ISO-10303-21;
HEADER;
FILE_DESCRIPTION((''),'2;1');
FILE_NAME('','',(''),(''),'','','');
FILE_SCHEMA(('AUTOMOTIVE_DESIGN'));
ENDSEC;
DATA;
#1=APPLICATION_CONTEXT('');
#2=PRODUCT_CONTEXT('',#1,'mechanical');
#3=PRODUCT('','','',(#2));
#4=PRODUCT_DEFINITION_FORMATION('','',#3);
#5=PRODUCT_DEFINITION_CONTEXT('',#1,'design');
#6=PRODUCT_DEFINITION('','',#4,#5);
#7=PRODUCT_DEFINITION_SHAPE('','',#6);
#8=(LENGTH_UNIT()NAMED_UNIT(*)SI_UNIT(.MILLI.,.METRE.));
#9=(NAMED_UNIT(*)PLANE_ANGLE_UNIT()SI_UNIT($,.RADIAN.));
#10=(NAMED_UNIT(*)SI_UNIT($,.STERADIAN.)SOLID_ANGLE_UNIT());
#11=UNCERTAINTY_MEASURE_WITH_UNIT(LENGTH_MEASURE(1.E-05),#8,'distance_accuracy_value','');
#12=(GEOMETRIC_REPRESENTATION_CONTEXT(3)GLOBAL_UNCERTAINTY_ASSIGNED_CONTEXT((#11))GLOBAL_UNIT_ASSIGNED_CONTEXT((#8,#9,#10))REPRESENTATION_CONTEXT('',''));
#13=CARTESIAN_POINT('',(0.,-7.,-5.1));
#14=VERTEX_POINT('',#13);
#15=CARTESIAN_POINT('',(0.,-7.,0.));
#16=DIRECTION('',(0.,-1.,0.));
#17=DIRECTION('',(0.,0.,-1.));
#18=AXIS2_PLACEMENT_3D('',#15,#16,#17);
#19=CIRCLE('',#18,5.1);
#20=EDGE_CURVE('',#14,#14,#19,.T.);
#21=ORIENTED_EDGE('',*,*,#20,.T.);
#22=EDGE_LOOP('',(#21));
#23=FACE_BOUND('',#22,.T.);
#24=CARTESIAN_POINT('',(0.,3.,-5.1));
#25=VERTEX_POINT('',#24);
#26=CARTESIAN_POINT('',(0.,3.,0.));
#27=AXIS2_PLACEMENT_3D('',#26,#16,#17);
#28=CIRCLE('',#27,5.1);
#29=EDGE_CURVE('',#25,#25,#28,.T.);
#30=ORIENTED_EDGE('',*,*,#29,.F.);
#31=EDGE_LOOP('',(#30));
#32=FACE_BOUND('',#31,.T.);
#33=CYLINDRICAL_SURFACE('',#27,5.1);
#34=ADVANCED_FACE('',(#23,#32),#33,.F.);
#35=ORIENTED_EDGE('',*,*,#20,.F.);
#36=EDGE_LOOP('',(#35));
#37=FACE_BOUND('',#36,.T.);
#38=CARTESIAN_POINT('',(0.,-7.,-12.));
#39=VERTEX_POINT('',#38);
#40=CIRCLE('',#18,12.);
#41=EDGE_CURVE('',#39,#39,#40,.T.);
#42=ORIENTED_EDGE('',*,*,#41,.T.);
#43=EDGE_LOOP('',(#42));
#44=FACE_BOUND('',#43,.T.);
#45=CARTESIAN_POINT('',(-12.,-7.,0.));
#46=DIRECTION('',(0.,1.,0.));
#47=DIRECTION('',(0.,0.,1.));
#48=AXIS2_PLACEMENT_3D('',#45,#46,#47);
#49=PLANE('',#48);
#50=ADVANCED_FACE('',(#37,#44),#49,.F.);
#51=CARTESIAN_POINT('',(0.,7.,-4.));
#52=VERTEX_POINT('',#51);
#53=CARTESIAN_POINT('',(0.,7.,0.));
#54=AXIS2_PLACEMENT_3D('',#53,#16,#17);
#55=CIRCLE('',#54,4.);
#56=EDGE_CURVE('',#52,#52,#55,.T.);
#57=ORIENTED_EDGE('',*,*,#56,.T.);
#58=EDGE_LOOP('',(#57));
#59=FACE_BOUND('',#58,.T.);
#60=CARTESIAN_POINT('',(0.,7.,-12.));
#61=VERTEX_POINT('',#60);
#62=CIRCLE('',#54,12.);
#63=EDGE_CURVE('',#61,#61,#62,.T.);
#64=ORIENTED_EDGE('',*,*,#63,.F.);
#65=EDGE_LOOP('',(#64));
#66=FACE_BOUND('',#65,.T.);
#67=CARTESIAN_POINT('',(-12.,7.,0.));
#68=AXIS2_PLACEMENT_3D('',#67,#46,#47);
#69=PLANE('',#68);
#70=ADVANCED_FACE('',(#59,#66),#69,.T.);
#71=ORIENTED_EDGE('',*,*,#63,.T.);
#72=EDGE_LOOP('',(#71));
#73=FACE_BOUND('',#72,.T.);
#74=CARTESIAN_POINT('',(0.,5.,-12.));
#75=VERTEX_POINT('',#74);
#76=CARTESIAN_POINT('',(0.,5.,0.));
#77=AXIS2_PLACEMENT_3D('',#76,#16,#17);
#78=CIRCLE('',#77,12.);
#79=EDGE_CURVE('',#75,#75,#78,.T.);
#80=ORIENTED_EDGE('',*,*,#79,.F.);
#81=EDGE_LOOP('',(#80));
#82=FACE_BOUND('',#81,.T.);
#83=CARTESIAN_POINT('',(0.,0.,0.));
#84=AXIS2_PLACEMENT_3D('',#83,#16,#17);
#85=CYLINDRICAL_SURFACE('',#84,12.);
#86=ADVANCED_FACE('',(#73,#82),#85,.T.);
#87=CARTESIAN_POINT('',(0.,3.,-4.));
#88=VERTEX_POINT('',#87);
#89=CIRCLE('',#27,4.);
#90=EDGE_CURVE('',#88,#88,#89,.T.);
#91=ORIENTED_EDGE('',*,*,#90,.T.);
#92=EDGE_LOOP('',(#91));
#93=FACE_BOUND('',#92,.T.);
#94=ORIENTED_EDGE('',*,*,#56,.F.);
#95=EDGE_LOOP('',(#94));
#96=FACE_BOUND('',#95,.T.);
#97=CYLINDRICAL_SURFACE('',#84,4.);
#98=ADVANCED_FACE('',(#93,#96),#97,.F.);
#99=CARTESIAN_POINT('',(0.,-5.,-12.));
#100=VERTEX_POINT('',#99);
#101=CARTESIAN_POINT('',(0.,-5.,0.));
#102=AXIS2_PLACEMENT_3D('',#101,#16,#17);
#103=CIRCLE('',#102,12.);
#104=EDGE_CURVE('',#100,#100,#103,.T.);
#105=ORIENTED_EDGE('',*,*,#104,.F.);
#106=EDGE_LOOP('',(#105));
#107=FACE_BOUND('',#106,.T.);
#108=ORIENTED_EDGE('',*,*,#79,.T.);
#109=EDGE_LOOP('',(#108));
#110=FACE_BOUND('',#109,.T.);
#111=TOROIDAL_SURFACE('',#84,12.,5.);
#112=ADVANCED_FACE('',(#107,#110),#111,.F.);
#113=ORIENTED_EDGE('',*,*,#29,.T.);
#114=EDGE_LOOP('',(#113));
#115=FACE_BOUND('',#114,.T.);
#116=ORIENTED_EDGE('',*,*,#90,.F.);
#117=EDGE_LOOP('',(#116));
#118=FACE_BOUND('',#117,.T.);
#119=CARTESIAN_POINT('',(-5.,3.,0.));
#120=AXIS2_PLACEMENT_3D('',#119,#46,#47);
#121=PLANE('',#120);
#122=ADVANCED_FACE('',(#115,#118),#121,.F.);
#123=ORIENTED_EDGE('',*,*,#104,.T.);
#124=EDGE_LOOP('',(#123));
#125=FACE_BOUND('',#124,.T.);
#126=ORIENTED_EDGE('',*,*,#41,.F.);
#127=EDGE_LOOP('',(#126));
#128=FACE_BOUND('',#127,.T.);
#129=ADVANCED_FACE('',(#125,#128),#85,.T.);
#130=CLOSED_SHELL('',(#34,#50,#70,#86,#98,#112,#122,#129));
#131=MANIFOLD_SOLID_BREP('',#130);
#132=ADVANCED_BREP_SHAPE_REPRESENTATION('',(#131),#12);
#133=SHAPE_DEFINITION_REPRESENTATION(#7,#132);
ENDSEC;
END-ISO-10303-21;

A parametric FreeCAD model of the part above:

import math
import FreeCAD as App
import Part
import Sketcher

doc = App.newDocument("Part")
body = doc.addObject("PartDesign::Body", "Body")

# Sketch on XY plane
sketch1 = body.newObject("Sketcher::SketchObject", "Sketch")
sketch1.AttachmentSupport = (doc.getObject("XY_Plane"), [""])
sketch1.MapMode = "FlatFace"
sketch1.addGeometry([
    Part.LineSegment(App.Vector(-12, -7, 0), App.Vector(-5, -7, 0)),  # 0
    Part.LineSegment(App.Vector(-5, -7, 0), App.Vector(-5, 7, 0)),  # 1
    Part.LineSegment(App.Vector(-5, 7, 0), App.Vector(-12, 7, 0)),  # 2
    Part.LineSegment(App.Vector(-12, 7, 0), App.Vector(-12, 5, 0)),  # 3
    Part.ArcOfCircle(Part.Circle(App.Vector(-12, 0, 0), App.Vector(0, 0, 1), 5), math.radians(-90), math.radians(90)),  # 4
    Part.LineSegment(App.Vector(-12, -5, 0), App.Vector(-12, -7, 0)),  # 5
], False)
sketch1.addConstraint([
    Sketcher.Constraint("Coincident", 0, 2, 1, 1),
    Sketcher.Constraint("Coincident", 1, 2, 2, 1),
    Sketcher.Constraint("Coincident", 2, 2, 3, 1),
    Sketcher.Constraint("Coincident", 3, 2, 4, 2),
    Sketcher.Constraint("Coincident", 4, 1, 5, 1),
    Sketcher.Constraint("Coincident", 5, 2, 0, 1),
    Sketcher.Constraint("Horizontal", 0),
    Sketcher.Constraint("Vertical", 1),
    Sketcher.Constraint("Horizontal", 2),
    Sketcher.Constraint("Vertical", 3),
    Sketcher.Constraint("Vertical", 5),
    Sketcher.Constraint("Symmetric", 3, 2, 4, 1, -1),
    Sketcher.Constraint("Vertical", 4, 3, 2, 2),
    Sketcher.Constraint("Equal", 3, 5),
    Sketcher.Constraint("Radius", 4, 5.0),
    Sketcher.Constraint("DistanceX", 0, 1, 0, 2, 7.0),
    Sketcher.Constraint("DistanceY", 1, 1, 1, 2, 14.0),
    Sketcher.Constraint("DistanceX", 4, 3, -1, 1, 12.0),
])
revolution = body.newObject("PartDesign::Revolution", "Revolution")
revolution.Profile = sketch1
revolution.ReferenceAxis = (sketch1, ["V_Axis"])
revolution.Angle = 360

# Sketch on XY plane
sketch2 = body.newObject("Sketcher::SketchObject", "Sketch001")
sketch2.AttachmentSupport = (doc.getObject("XY_Plane"), [""])
sketch2.MapMode = "FlatFace"
sketch2.addGeometry([
    Part.LineSegment(App.Vector(-5, 7, 0), App.Vector(-5, 3, 0)),  # 0
    Part.LineSegment(App.Vector(-5, 3, 0), App.Vector(-4, 3, 0)),  # 1
    Part.LineSegment(App.Vector(-4, 3, 0), App.Vector(-4, 7, 0)),  # 2
    Part.LineSegment(App.Vector(-4, 7, 0), App.Vector(-5, 7, 0)),  # 3
    Part.LineSegment(App.Vector(-5, -3, 0), App.Vector(-5, -7, 0)),  # 4
    Part.LineSegment(App.Vector(-5, -7, 0), App.Vector(-4, -7, 0)),  # 5
    Part.LineSegment(App.Vector(-4, -7, 0), App.Vector(-4, -3, 0)),  # 6
    Part.LineSegment(App.Vector(-4, -3, 0), App.Vector(-5, -3, 0)),  # 7
], False)
sketch2.addConstraint([
    Sketcher.Constraint("Coincident", 0, 2, 1, 1),
    Sketcher.Constraint("Coincident", 1, 2, 2, 1),
    Sketcher.Constraint("Coincident", 2, 2, 3, 1),
    Sketcher.Constraint("Coincident", 3, 2, 0, 1),
    Sketcher.Constraint("Coincident", 4, 2, 5, 1),
    Sketcher.Constraint("Coincident", 5, 2, 6, 1),
    Sketcher.Constraint("Coincident", 6, 2, 7, 1),
    Sketcher.Constraint("Coincident", 7, 2, 4, 1),
    Sketcher.Constraint("Vertical", 0),
    Sketcher.Constraint("Horizontal", 1),
    Sketcher.Constraint("Vertical", 2),
    Sketcher.Constraint("Horizontal", 3),
    Sketcher.Constraint("Vertical", 4),
    Sketcher.Constraint("Horizontal", 5),
    Sketcher.Constraint("Vertical", 6),
    Sketcher.Constraint("Horizontal", 7),
    Sketcher.Constraint("Symmetric", 3, 2, 4, 2, -1),
    Sketcher.Constraint("Symmetric", 1, 2, 6, 2, -1),
    Sketcher.Constraint("DistanceX", 1, 1, 1, 2, 1.0),
    Sketcher.Constraint("DistanceY", 0, 2, 0, 1, 4.0),
    Sketcher.Constraint("DistanceX", 0, 2, -1, 1, 5.0),
    Sketcher.Constraint("DistanceY", -1, 1, 0, 2, 3.0),
])
revolution2 = body.newObject("PartDesign::Revolution", "Revolution001")
revolution2.Profile = sketch2
revolution2.ReferenceAxis = (sketch2, ["V_Axis"])
revolution2.Angle = 360

# Sketch on XZ plane
sketch3 = body.newObject("Sketcher::SketchObject", "Sketch002")
sketch3.AttachmentSupport = (doc.getObject("XZ_Plane"), [""])
sketch3.MapMode = "FlatFace"
sketch3.AttachmentOffset = App.Placement(App.Vector(0, 0, 7), App.Rotation())
sketch3.addGeometry(Part.Circle(App.Vector(0, 0, 0), App.Vector(0, 0, 1), 5), False)
sketch3.addConstraint([
    Sketcher.Constraint("Coincident", 0, 3, -1, 1),
    Sketcher.Constraint("Diameter", 0, 10.2),
])
pocket1 = body.newObject("PartDesign::Pocket", "Pocket")
pocket1.Profile = sketch3
pocket1.Length = 10

doc.recompute()
